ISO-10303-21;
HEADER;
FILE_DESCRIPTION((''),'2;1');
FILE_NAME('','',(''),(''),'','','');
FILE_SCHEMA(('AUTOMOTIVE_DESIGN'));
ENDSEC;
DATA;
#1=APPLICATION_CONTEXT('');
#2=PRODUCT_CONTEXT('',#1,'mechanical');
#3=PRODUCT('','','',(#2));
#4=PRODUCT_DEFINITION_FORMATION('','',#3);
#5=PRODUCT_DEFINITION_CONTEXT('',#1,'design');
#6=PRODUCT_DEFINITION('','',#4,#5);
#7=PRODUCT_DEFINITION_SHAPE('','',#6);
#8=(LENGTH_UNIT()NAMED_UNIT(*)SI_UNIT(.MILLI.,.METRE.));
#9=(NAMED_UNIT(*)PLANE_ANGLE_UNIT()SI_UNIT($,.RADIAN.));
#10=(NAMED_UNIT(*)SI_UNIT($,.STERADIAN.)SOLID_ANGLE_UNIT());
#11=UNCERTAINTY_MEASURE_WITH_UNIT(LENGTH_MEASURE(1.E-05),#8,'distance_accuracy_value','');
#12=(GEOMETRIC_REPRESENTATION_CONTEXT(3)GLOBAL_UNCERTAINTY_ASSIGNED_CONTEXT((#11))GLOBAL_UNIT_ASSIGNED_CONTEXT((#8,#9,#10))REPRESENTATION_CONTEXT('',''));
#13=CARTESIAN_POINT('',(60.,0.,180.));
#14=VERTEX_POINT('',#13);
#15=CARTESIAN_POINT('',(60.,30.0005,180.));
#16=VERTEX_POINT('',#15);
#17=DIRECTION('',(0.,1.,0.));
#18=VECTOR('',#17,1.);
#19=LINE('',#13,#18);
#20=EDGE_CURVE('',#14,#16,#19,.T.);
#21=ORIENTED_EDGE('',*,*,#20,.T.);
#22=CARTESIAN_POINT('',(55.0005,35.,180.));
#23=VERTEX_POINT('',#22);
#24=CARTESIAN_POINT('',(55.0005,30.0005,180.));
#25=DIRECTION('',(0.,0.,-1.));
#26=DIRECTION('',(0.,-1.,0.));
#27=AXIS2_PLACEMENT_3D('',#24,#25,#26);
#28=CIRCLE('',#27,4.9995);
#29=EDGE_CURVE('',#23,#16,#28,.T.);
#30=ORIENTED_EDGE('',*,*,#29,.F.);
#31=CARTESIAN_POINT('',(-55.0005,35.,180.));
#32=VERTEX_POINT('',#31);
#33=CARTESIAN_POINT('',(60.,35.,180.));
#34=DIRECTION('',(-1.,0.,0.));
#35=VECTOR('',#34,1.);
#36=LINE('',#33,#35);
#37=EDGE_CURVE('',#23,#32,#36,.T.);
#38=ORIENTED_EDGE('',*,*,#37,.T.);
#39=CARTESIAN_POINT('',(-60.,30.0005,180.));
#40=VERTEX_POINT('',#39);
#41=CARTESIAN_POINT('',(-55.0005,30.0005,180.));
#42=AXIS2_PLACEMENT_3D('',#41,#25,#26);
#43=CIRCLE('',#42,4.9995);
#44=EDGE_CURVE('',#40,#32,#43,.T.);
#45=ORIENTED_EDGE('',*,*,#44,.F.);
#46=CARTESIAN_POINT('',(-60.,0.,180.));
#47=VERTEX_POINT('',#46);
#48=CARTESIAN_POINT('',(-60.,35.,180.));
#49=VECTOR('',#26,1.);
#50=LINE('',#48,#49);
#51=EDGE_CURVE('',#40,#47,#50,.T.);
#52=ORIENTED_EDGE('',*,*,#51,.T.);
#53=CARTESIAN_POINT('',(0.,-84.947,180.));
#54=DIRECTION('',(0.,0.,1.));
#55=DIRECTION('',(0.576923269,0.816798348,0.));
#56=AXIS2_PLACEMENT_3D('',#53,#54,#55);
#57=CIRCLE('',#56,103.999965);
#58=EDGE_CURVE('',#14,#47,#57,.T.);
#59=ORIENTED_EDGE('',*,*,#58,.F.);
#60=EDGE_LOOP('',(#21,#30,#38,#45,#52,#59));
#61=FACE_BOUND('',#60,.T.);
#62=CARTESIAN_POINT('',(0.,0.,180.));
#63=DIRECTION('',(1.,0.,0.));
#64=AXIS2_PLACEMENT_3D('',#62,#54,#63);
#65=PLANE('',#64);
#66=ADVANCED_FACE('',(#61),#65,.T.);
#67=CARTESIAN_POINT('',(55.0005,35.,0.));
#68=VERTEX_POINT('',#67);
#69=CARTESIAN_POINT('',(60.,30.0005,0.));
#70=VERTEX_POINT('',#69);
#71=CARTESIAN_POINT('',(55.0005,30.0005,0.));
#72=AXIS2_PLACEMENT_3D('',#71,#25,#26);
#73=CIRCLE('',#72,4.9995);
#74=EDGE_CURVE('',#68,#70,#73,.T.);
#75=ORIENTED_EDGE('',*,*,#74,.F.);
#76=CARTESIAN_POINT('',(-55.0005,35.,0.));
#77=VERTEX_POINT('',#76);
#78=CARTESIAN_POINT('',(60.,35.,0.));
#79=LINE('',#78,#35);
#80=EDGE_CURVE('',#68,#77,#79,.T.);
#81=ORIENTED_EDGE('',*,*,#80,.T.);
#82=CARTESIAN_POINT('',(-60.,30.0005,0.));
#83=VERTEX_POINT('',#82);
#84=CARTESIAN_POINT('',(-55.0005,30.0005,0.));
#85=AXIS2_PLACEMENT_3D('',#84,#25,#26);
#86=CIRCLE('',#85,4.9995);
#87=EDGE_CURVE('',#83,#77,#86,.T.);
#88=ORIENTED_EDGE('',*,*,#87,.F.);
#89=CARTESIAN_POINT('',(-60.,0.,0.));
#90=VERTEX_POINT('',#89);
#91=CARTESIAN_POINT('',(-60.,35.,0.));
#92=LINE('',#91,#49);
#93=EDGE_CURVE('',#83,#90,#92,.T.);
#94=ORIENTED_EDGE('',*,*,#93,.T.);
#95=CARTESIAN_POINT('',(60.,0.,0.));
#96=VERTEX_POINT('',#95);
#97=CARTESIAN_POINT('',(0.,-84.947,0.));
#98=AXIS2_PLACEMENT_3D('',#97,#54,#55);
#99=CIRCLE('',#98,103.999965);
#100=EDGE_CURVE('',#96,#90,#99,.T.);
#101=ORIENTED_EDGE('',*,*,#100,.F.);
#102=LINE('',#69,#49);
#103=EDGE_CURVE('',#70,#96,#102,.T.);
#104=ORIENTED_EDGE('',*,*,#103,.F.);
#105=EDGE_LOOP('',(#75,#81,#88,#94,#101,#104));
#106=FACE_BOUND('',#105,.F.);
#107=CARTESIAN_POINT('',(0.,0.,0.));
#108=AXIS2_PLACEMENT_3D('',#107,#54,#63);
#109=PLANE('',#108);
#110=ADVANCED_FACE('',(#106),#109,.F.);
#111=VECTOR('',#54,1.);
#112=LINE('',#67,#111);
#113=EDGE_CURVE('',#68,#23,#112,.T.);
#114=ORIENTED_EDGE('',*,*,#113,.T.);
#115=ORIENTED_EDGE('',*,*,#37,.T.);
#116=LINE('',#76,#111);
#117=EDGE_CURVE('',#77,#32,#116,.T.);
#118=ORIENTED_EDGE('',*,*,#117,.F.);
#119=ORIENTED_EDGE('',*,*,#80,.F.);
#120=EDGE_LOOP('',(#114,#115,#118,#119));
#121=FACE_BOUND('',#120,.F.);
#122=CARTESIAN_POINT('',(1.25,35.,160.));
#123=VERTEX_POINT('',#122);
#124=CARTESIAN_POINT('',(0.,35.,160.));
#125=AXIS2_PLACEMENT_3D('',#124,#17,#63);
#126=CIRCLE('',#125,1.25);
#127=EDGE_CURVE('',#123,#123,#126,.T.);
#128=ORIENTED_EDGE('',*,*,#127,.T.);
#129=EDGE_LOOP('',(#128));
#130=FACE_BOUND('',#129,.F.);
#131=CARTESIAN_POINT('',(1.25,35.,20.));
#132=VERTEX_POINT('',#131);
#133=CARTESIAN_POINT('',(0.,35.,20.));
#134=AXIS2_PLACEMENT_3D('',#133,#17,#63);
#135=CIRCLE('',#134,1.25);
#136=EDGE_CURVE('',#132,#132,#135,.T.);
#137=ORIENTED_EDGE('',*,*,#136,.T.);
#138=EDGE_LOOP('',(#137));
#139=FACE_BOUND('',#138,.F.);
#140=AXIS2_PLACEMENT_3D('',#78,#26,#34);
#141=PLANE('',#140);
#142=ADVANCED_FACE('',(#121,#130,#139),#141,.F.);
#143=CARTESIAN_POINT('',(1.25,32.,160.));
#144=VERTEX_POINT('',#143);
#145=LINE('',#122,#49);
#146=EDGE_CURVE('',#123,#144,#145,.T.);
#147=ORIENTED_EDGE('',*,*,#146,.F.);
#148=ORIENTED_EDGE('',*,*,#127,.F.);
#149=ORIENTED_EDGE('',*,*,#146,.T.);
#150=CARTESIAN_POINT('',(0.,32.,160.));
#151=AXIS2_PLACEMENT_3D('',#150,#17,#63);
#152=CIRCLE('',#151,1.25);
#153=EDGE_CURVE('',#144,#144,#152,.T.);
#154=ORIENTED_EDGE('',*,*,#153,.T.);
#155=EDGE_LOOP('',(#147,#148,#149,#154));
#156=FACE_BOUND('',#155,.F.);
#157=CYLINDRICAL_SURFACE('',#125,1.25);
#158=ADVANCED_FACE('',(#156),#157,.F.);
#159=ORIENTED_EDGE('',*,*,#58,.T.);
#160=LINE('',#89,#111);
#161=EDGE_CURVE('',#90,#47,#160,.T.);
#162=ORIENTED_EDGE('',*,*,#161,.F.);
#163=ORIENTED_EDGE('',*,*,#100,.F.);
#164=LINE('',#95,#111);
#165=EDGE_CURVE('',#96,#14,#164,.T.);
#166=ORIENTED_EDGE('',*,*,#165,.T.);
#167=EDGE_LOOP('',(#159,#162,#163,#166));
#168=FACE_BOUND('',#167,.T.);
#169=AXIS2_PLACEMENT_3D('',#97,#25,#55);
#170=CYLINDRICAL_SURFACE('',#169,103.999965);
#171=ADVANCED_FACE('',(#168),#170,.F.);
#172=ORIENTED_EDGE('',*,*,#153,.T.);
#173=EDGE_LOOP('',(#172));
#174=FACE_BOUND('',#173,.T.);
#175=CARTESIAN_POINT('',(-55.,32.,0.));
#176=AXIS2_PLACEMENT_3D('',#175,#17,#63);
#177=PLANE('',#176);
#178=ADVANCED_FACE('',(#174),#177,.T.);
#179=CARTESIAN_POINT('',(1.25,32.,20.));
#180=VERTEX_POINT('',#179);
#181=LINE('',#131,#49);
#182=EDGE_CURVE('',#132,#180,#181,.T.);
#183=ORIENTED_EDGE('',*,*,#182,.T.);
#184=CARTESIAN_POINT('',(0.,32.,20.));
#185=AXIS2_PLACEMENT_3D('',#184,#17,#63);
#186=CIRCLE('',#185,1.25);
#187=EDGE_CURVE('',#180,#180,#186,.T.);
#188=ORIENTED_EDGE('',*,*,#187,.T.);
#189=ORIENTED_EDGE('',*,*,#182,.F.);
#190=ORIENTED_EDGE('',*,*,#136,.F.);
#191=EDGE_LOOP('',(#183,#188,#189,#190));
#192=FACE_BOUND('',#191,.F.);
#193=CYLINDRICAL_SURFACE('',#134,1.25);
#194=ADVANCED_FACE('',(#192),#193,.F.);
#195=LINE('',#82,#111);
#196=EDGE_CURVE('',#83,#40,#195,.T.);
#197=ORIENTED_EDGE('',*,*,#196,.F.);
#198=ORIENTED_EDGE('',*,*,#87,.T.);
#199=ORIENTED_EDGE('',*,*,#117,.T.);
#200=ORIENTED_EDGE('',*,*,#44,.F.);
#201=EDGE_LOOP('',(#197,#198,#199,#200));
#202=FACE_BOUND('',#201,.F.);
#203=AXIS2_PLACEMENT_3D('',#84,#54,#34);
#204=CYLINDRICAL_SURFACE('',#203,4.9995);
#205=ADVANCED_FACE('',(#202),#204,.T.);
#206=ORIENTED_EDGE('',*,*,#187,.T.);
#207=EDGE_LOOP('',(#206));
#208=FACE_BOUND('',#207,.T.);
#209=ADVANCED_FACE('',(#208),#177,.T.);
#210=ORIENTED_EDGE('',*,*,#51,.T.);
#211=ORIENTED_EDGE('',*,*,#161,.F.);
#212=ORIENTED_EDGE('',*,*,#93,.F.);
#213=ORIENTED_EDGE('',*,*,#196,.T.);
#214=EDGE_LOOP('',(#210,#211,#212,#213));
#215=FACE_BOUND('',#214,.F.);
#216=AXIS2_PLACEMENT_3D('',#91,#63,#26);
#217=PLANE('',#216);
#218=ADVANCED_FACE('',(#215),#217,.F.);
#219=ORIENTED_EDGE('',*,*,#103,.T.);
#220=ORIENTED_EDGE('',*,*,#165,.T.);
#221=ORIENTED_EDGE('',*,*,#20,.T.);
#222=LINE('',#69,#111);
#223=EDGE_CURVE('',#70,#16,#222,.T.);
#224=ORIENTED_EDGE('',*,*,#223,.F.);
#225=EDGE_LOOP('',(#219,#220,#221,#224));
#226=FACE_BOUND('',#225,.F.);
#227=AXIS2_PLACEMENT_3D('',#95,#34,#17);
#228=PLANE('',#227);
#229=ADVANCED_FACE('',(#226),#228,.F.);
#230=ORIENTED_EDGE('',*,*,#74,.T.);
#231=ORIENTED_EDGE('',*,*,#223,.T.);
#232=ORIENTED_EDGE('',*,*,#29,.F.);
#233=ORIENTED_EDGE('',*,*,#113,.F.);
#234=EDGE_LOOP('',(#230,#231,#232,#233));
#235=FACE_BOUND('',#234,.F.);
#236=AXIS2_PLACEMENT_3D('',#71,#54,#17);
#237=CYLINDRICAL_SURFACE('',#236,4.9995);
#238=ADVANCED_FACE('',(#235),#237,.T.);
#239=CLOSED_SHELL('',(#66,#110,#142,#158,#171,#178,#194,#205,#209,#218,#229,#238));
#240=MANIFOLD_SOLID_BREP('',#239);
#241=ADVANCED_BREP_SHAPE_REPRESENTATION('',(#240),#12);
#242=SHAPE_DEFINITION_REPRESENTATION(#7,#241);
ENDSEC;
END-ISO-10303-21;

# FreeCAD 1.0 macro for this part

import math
import FreeCAD as App
import Part
import Sketcher

V = App.Vector
Q = App.Units.Quantity


def edges_at(feature, points):
    """Names of the edges that pass closest to the given points."""
    edges = feature.Shape.Edges
    near = lambda p: min(range(len(edges)), key=lambda i: edges[i].distToShape(Part.Vertex(*p))[0])
    return sorted({f"Edge{near(p) + 1}" for p in points})

doc = App.newDocument("Part")
body = doc.addObject("PartDesign::Body", "Body")

sketch1 = body.newObject("Sketcher::SketchObject", "Sketch")
sketch1.AttachmentSupport = (doc.getObject("XY_Plane"), [""])
sketch1.MapMode = "FlatFace"
sketch1.addGeometry([
    Part.ArcOfCircle(Part.Circle(V(0, -85, 0), V(0, 0, 1), 104), math.radians(55), math.radians(125)),
    Part.LineSegment(V(60, 0, 0), V(60, 35, 0)),
    Part.LineSegment(V(60, 35, 0), V(-60, 35, 0)),
    Part.LineSegment(V(-60, 35, 0), V(-60, 0, 0)),
], False)
sketch1.addConstraint([
    Sketcher.Constraint("Coincident", 0, 1, 1, 1),
    Sketcher.Constraint("Coincident", 1, 2, 2, 1),
    Sketcher.Constraint("Coincident", 2, 2, 3, 1),
    Sketcher.Constraint("Coincident", 3, 2, 0, 2),
    Sketcher.Constraint("Vertical", 1),
    Sketcher.Constraint("Horizontal", 2),
    Sketcher.Constraint("Vertical", 3),
    Sketcher.Constraint("Symmetric", 0, 1, 3, 2, -1, 1),
    Sketcher.Constraint("PointOnObject", 0, 3, -2),
    Sketcher.Constraint("Radius", 0, Q("104 mm")),
    Sketcher.Constraint("DistanceX", 2, 2, 2, 1, Q("120 mm")),
    Sketcher.Constraint("DistanceY", 1, 1, 1, 2, Q("35 mm")),
])
pad1 = body.newObject("PartDesign::Pad", "Pad")
pad1.Profile = sketch1
pad1.Length = 180
doc.recompute()

fillet = body.newObject("PartDesign::Fillet", "Fillet")
fillet.Base = (pad1, edges_at(pad1, [(-60, 35, 90), (60, 35, 90)]))
fillet.Radius = 5

sketch2 = body.newObject("Sketcher::SketchObject", "Sketch001")
sketch2.AttachmentSupport = (doc.getObject("XZ_Plane"), [""])
sketch2.MapMode = "FlatFace"
sketch2.AttachmentOffset = App.Placement(V(0, 0, -35), App.Rotation())
sketch2.addGeometry([
    Part.Circle(V(0, 160, 0), V(0, 0, 1), 1.2),
    Part.Circle(V(0, 20, 0), V(0, 0, 1), 1.2),
], False)
sketch2.addConstraint([
    Sketcher.Constraint("Equal", 0, 1),
    Sketcher.Constraint("PointOnObject", 0, 3, -2),
    Sketcher.Constraint("PointOnObject", 1, 3, -2),
    Sketcher.Constraint("Diameter", 0, Q("2.5 mm")),
    Sketcher.Constraint("DistanceY", -1, 1, 0, 3, Q("160 mm")),
    Sketcher.Constraint("DistanceY", -1, 1, 1, 3, Q("20 mm")),
])
pocket1 = body.newObject("PartDesign::Pocket", "Pocket")
pocket1.Profile = sketch2
pocket1.Length = 3
pocket1.Reversed = True

doc.recompute()
